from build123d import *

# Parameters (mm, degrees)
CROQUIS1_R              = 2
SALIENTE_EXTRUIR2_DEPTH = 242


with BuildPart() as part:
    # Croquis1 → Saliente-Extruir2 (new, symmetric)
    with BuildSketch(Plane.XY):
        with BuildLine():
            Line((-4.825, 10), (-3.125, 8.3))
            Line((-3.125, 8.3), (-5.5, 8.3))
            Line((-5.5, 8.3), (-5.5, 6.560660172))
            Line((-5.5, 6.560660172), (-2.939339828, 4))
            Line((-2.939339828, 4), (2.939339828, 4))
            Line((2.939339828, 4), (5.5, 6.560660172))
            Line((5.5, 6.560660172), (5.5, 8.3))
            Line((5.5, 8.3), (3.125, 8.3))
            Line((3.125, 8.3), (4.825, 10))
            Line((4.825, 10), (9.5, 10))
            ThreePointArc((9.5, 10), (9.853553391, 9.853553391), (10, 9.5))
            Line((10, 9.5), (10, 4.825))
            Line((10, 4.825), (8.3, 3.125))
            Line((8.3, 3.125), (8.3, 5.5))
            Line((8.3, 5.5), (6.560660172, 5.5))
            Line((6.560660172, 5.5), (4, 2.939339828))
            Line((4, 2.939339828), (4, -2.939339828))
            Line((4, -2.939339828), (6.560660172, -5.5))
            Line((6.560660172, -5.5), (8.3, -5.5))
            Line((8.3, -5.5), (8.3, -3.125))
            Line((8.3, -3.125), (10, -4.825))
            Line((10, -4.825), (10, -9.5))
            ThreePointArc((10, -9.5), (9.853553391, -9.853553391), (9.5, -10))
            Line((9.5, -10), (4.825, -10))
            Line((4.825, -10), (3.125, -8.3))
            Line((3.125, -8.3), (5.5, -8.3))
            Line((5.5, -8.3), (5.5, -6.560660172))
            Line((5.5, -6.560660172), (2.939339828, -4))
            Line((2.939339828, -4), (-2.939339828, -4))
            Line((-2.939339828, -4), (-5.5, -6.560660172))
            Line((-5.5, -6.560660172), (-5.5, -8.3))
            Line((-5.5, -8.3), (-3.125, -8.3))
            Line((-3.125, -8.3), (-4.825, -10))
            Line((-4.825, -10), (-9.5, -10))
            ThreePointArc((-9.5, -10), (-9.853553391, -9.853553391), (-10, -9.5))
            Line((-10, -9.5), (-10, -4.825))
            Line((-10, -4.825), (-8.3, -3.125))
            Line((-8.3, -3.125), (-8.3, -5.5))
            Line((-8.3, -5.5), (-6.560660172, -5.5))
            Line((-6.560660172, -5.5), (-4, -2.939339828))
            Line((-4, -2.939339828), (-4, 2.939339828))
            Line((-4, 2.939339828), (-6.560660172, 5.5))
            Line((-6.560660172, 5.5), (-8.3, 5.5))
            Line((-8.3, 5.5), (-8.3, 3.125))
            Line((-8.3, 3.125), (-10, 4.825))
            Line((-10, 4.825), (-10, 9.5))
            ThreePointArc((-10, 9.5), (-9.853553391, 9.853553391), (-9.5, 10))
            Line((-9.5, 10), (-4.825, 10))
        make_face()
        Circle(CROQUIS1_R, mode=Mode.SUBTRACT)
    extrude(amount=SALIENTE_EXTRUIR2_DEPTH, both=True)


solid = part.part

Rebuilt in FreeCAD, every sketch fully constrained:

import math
import FreeCAD as App
import Part
import Sketcher
from FreeCAD import Vector
Q = App.Units.Quantity

doc = App.newDocument("Part")
body = doc.addObject("PartDesign::Body", "Body")

# Sketch on XY plane
sketch1 = body.newObject("Sketcher::SketchObject", "Sketch")
sketch1.AttachmentSupport = (doc.getObject("XY_Plane"), [""])
sketch1.MapMode = "FlatFace"
sketch1.addGeometry([
    Part.LineSegment(Vector(-3.125, 8.3, 0), Vector(-4.825, 10, 0)),  # 0
    Part.LineSegment(Vector(-4.825, 10, 0), Vector(-9.5, 10, 0)),  # 1
    Part.ArcOfCircle(Part.Circle(Vector(-9.5, 9.5, 0), Vector(0, 0, 1), 0.5), math.radians(90), math.radians(180)),  # 2
    Part.LineSegment(Vector(-10, 9.5, 0), Vector(-10, 4.825, 0)),  # 3
    Part.LineSegment(Vector(-10, 4.825, 0), Vector(-8.3, 3.125, 0)),  # 4
    Part.LineSegment(Vector(-8.3, 3.125, 0), Vector(-8.3, 5.5, 0)),  # 5
    Part.LineSegment(Vector(-8.3, 5.5, 0), Vector(-6.56066, 5.5, 0)),  # 6
    Part.LineSegment(Vector(-6.56066, 5.5, 0), Vector(-4, 2.93934, 0)),  # 7
    Part.LineSegment(Vector(-4, 2.93934, 0), Vector(-4, -2.93934, 0)),  # 8
    Part.LineSegment(Vector(-4, -2.93934, 0), Vector(-6.56066, -5.5, 0)),  # 9
    Part.LineSegment(Vector(-6.56066, -5.5, 0), Vector(-8.3, -5.5, 0)),  # 10
    Part.LineSegment(Vector(-8.3, -5.5, 0), Vector(-8.3, -3.125, 0)),  # 11
    Part.LineSegment(Vector(-8.3, -3.125, 0), Vector(-10, -4.825, 0)),  # 12
    Part.LineSegment(Vector(-10, -4.825, 0), Vector(-10, -9.5, 0)),  # 13
    Part.ArcOfCircle(Part.Circle(Vector(-9.5, -9.5, 0), Vector(0, 0, 1), 0.5), math.radians(180), math.radians(270)),  # 14
    Part.LineSegment(Vector(-9.5, -10, 0), Vector(-4.825, -10, 0)),  # 15
    Part.LineSegment(Vector(-4.825, -10, 0), Vector(-3.125, -8.3, 0)),  # 16
    Part.LineSegment(Vector(-3.125, -8.3, 0), Vector(-5.5, -8.3, 0)),  # 17
    Part.LineSegment(Vector(-5.5, -8.3, 0), Vector(-5.5, -6.56066, 0)),  # 18
    Part.LineSegment(Vector(-5.5, -6.56066, 0), Vector(-2.93934, -4, 0)),  # 19
    Part.LineSegment(Vector(-2.93934, -4, 0), Vector(2.93934, -4, 0)),  # 20
    Part.LineSegment(Vector(2.93934, -4, 0), Vector(5.5, -6.56066, 0)),  # 21
    Part.LineSegment(Vector(5.5, -6.56066, 0), Vector(5.5, -8.3, 0)),  # 22
    Part.LineSegment(Vector(5.5, -8.3, 0), Vector(3.125, -8.3, 0)),  # 23
    Part.LineSegment(Vector(3.125, -8.3, 0), Vector(4.825, -10, 0)),  # 24
    Part.LineSegment(Vector(4.825, -10, 0), Vector(9.5, -10, 0)),  # 25
    Part.ArcOfCircle(Part.Circle(Vector(9.5, -9.5, 0), Vector(0, 0, 1), 0.5), math.radians(-90), math.radians(0)),  # 26
    Part.LineSegment(Vector(10, -9.5, 0), Vector(10, -4.825, 0)),  # 27
    Part.LineSegment(Vector(10, -4.825, 0), Vector(8.3, -3.125, 0)),  # 28
    Part.LineSegment(Vector(8.3, -3.125, 0), Vector(8.3, -5.5, 0)),  # 29
    Part.LineSegment(Vector(8.3, -5.5, 0), Vector(6.56066, -5.5, 0)),  # 30
    Part.LineSegment(Vector(6.56066, -5.5, 0), Vector(4, -2.93934, 0)),  # 31
    Part.LineSegment(Vector(4, -2.93934, 0), Vector(4, 2.93934, 0)),  # 32
    Part.LineSegment(Vector(4, 2.93934, 0), Vector(6.56066, 5.5, 0)),  # 33
    Part.LineSegment(Vector(6.56066, 5.5, 0), Vector(8.3, 5.5, 0)),  # 34
    Part.LineSegment(Vector(8.3, 5.5, 0), Vector(8.3, 3.125, 0)),  # 35
    Part.LineSegment(Vector(8.3, 3.125, 0), Vector(10, 4.825, 0)),  # 36
    Part.LineSegment(Vector(10, 4.825, 0), Vector(10, 9.5, 0)),  # 37
    Part.ArcOfCircle(Part.Circle(Vector(9.5, 9.5, 0), Vector(0, 0, 1), 0.5), math.radians(0), math.radians(90)),  # 38
    Part.LineSegment(Vector(9.5, 10, 0), Vector(4.825, 10, 0)),  # 39
    Part.LineSegment(Vector(4.825, 10, 0), Vector(3.125, 8.3, 0)),  # 40
    Part.LineSegment(Vector(3.125, 8.3, 0), Vector(5.5, 8.3, 0)),  # 41
    Part.LineSegment(Vector(5.5, 8.3, 0), Vector(5.5, 6.56066, 0)),  # 42
    Part.LineSegment(Vector(5.5, 6.56066, 0), Vector(2.93934, 4, 0)),  # 43
    Part.LineSegment(Vector(2.93934, 4, 0), Vector(-2.93934, 4, 0)),  # 44
    Part.LineSegment(Vector(-2.93934, 4, 0), Vector(-5.5, 6.56066, 0)),  # 45
    Part.LineSegment(Vector(-5.5, 6.56066, 0), Vector(-5.5, 8.3, 0)),  # 46
    Part.LineSegment(Vector(-5.5, 8.3, 0), Vector(-3.125, 8.3, 0)),  # 47
    Part.Circle(Vector(0, 0, 0), Vector(0, 0, 1), 2),  # 48
], False)
sketch1.addConstraint([
    Sketcher.Constraint("Coincident", 0, 2, 1, 1),
    Sketcher.Constraint("Tangent", 1, 2, 2, 1),
    Sketcher.Constraint("Tangent", 2, 2, 3, 1),
    Sketcher.Constraint("Coincident", 3, 2, 4, 1),
    Sketcher.Constraint("Coincident", 4, 2, 5, 1),
    Sketcher.Constraint("Coincident", 5, 2, 6, 1),
    Sketcher.Constraint("Coincident", 6, 2, 7, 1),
    Sketcher.Constraint("Coincident", 7, 2, 8, 1),
    Sketcher.Constraint("Coincident", 8, 2, 9, 1),
    Sketcher.Constraint("Coincident", 9, 2, 10, 1),
    Sketcher.Constraint("Coincident", 10, 2, 11, 1),
    Sketcher.Constraint("Coincident", 11, 2, 12, 1),
    Sketcher.Constraint("Coincident", 12, 2, 13, 1),
    Sketcher.Constraint("Tangent", 13, 2, 14, 1),
    Sketcher.Constraint("Tangent", 14, 2, 15, 1),
    Sketcher.Constraint("Coincident", 15, 2, 16, 1),
    Sketcher.Constraint("Coincident", 16, 2, 17, 1),
    Sketcher.Constraint("Coincident", 17, 2, 18, 1),
    Sketcher.Constraint("Coincident", 18, 2, 19, 1),
    Sketcher.Constraint("Coincident", 19, 2, 20, 1),
    Sketcher.Constraint("Coincident", 20, 2, 21, 1),
    Sketcher.Constraint("Coincident", 21, 2, 22, 1),
    Sketcher.Constraint("Coincident", 22, 2, 23, 1),
    Sketcher.Constraint("Coincident", 23, 2, 24, 1),
    Sketcher.Constraint("Coincident", 24, 2, 25, 1),
    Sketcher.Constraint("Tangent", 25, 2, 26, 1),
    Sketcher.Constraint("Tangent", 26, 2, 27, 1),
    Sketcher.Constraint("Coincident", 27, 2, 28, 1),
    Sketcher.Constraint("Coincident", 28, 2, 29, 1),
    Sketcher.Constraint("Coincident", 29, 2, 30, 1),
    Sketcher.Constraint("Coincident", 30, 2, 31, 1),
    Sketcher.Constraint("Coincident", 31, 2, 32, 1),
    Sketcher.Constraint("Coincident", 32, 2, 33, 1),
    Sketcher.Constraint("Coincident", 33, 2, 34, 1),
    Sketcher.Constraint("Coincident", 34, 2, 35, 1),
    Sketcher.Constraint("Coincident", 35, 2, 36, 1),
    Sketcher.Constraint("Coincident", 36, 2, 37, 1),
    Sketcher.Constraint("Tangent", 37, 2, 38, 1),
    Sketcher.Constraint("Tangent", 38, 2, 39, 1),
    Sketcher.Constraint("Coincident", 39, 2, 40, 1),
    Sketcher.Constraint("Coincident", 40, 2, 41, 1),
    Sketcher.Constraint("Coincident", 41, 2, 42, 1),
    Sketcher.Constraint("Coincident", 42, 2, 43, 1),
    Sketcher.Constraint("Coincident", 43, 2, 44, 1),
    Sketcher.Constraint("Coincident", 44, 2, 45, 1),
    Sketcher.Constraint("Coincident", 45, 2, 46, 1),
    Sketcher.Constraint("Coincident", 46, 2, 47, 1),
    Sketcher.Constraint("Coincident", 47, 2, 0, 1),
    Sketcher.Constraint("Horizontal", 1),
    Sketcher.Constraint("Vertical", 3),
    Sketcher.Constraint("Vertical", 5),
    Sketcher.Constraint("Horizontal", 6),
    Sketcher.Constraint("Vertical", 8),
    Sketcher.Constraint("Horizontal", 10),
    Sketcher.Constraint("Vertical", 11),
    Sketcher.Constraint("Vertical", 13),
    Sketcher.Constraint("Horizontal", 15),
    Sketcher.Constraint("Horizontal", 17),
    Sketcher.Constraint("Vertical", 18),
    Sketcher.Constraint("Horizontal", 20),
    Sketcher.Constraint("Vertical", 22),
    Sketcher.Constraint("Horizontal", 23),
    Sketcher.Constraint("Horizontal", 25),
    Sketcher.Constraint("Vertical", 27),
    Sketcher.Constraint("Vertical", 29),
    Sketcher.Constraint("Horizontal", 30),
    Sketcher.Constraint("Vertical", 32),
    Sketcher.Constraint("Horizontal", 34),
    Sketcher.Constraint("Vertical", 35),
    Sketcher.Constraint("Vertical", 37),
    Sketcher.Constraint("Horizontal", 39),
    Sketcher.Constraint("Horizontal", 41),
    Sketcher.Constraint("Vertical", 42),
    Sketcher.Constraint("Horizontal", 44),
    Sketcher.Constraint("Vertical", 46),
    Sketcher.Constraint("Horizontal", 47),
    Sketcher.Constraint("Coincident", 48, 3, -1, 1),
    Sketcher.Constraint("Equal", 2, 14),
    Sketcher.Constraint("Equal", 14, 26),
    Sketcher.Constraint("Equal", 26, 38),
    Sketcher.Constraint("Symmetric", 2, 3, 26, 3, -1, 1),
    Sketcher.Constraint("Symmetric", 14, 3, 38, 3, -1, 1),
    Sketcher.Constraint("Symmetric", 4, 2, 28, 2, -1, 1),
    Sketcher.Constraint("Symmetric", 6, 2, 30, 2, -1, 1),
    Sketcher.Constraint("Symmetric", 7, 2, 31, 2, -1, 1),
    Sketcher.Constraint("Symmetric", 9, 2, 33, 2, -1, 1),
    Sketcher.Constraint("Symmetric", 11, 2, 35, 2, -1, 1),
    Sketcher.Constraint("Symmetric", 16, 2, 40, 2, -1, 1),
    Sketcher.Constraint("Symmetric", 18, 2, 42, 2, -1, 1),
    Sketcher.Constraint("Symmetric", 19, 2, 43, 2, -1, 1),
    Sketcher.Constraint("Symmetric", 21, 2, 45, 2, -1, 1),
    Sketcher.Constraint("Symmetric", 23, 2, 47, 2, -1, 1),
    Sketcher.Constraint("Symmetric", 14, 3, 26, 3, -2),
    Sketcher.Constraint("Symmetric", 18, 2, 21, 2, -2),
    Sketcher.Constraint("Symmetric", 16, 2, 23, 2, -2),
    Sketcher.Constraint("Symmetric", 11, 2, 28, 2, -2),
    Sketcher.Constraint("Symmetric", 9, 2, 30, 2, -2),
    Sketcher.Constraint("Parallel", 0, 4),
    Sketcher.Constraint("Parallel", 4, 7),
    Sketcher.Constraint("Perpendicular", 7, 9),
    Sketcher.Constraint("Parallel", 9, 12),
    Sketcher.Constraint("Parallel", 12, 16),
    Sketcher.Constraint("Parallel", 16, 19),
    Sketcher.Constraint("Perpendicular", 19, 21),
    Sketcher.Constraint("Parallel", 21, 24),
    Sketcher.Constraint("Parallel", 24, 28),
    Sketcher.Constraint("Perpendicular", 31, 33),
    Sketcher.Constraint("Parallel", 33, 36),
    Sketcher.Constraint("Parallel", 36, 40),
    Sketcher.Constraint("Perpendicular", 43, 45),
    Sketcher.Constraint("Horizontal", 12, 2, 27, 2),
    Sketcher.Constraint("Equal", 39, 3),
    Sketcher.Constraint("Equal", 47, 5),
    Sketcher.Constraint("Equal", 44, 8),
    Sketcher.Constraint("Equal", 34, 18),
    Sketcher.Constraint("Equal", 0, 4),
    Sketcher.Constraint("Equal", 9, 19),
    Sketcher.Constraint("Diameter", 48, Q("4 mm")),
    Sketcher.Constraint("Radius", 2, Q("0.5 mm")),
    Sketcher.Constraint("DistanceY", -1, 1, 0, 2, Q("10 mm")),
    Sketcher.Constraint("DistanceX", 7, 2, -1, 1, Q("4 mm")),
    Sketcher.Constraint("DistanceY", 5, 2, 2, 3, Q("4 mm")),
    Sketcher.Constraint("DistanceX", 4, 2, -1, 1, Q("8.3 mm")),
    Sketcher.Constraint("DistanceX", 1, 2, 1, 1, Q("4.675 mm")),
    Sketcher.Constraint("DistanceX", 6, 1, 6, 2, Q("1.73934 mm")),
])
pad1 = body.newObject("PartDesign::Pad", "Pad")
pad1.Profile = sketch1
pad1.Length = 484
pad1.Midplane = True

doc.recompute()
